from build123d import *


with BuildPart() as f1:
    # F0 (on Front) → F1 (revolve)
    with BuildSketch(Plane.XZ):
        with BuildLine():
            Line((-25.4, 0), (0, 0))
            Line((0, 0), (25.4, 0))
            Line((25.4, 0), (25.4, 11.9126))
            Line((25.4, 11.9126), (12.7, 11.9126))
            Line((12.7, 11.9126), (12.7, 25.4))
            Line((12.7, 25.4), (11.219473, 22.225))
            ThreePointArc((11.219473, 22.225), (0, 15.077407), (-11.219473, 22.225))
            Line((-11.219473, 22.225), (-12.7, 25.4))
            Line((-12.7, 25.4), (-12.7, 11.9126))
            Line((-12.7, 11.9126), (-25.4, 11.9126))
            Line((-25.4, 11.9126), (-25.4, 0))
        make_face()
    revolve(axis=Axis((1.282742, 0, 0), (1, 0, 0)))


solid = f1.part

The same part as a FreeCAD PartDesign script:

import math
import FreeCAD as App
import Part
import Sketcher
from FreeCAD import Vector
Q = App.Units.Quantity

doc = App.newDocument("Part")
body = doc.addObject("PartDesign::Body", "Body")

# Sketch on XZ plane
sketch1 = body.newObject("Sketcher::SketchObject", "Sketch")
sketch1.AttachmentSupport = (doc.getObject("XZ_Plane"), [""])
sketch1.MapMode = "FlatFace"
sketch1.addGeometry(Part.LineSegment(Vector(-25.4, 0, 0), Vector(25.4, 0, 0)), False)
sketch1.addGeometry(Part.LineSegment(Vector(25.4, 0, 0), Vector(25.4, 11.9126, 0)), False)
sketch1.addGeometry(Part.LineSegment(Vector(25.4, 11.9126, 0), Vector(12.7, 11.9126, 0)), False)
sketch1.addGeometry(Part.LineSegment(Vector(12.7, 11.9126, 0), Vector(12.7, 25.4, 0)), False)
sketch1.addGeometry(Part.LineSegment(Vector(12.7, 25.4, 0), Vector(11.219473, 22.225, 0)), False)
sketch1.addGeometry(Part.ArcOfCircle(Part.Circle(Vector(0, 27.456725, 0), Vector(0, 0, 1), 12.379318), math.radians(-155.000003), math.radians(-24.999997)), False)
sketch1.addGeometry(Part.LineSegment(Vector(-11.219473, 22.225, 0), Vector(-12.7, 25.4, 0)), False)
sketch1.addGeometry(Part.LineSegment(Vector(-12.7, 25.4, 0), Vector(-12.7, 11.9126, 0)), False)
sketch1.addGeometry(Part.LineSegment(Vector(-12.7, 11.9126, 0), Vector(-25.4, 11.9126, 0)), False)
sketch1.addGeometry(Part.LineSegment(Vector(-25.4, 11.9126, 0), Vector(-25.4, 0, 0)), False)
sketch1.addConstraint(Sketcher.Constraint("Coincident", 0, 2, 1, 1))
sketch1.addConstraint(Sketcher.Constraint("Coincident", 1, 2, 2, 1))
sketch1.addConstraint(Sketcher.Constraint("Coincident", 2, 2, 3, 1))
sketch1.addConstraint(Sketcher.Constraint("Coincident", 3, 2, 4, 1))
sketch1.addConstraint(Sketcher.Constraint("Tangent", 4, 2, 5, 2))
sketch1.addConstraint(Sketcher.Constraint("Tangent", 5, 1, 6, 1))
sketch1.addConstraint(Sketcher.Constraint("Coincident", 6, 2, 7, 1))
sketch1.addConstraint(Sketcher.Constraint("Coincident", 7, 2, 8, 1))
sketch1.addConstraint(Sketcher.Constraint("Coincident", 8, 2, 9, 1))
sketch1.addConstraint(Sketcher.Constraint("Coincident", 9, 2, 0, 1))
sketch1.addConstraint(Sketcher.Constraint("Horizontal", 0))
sketch1.addConstraint(Sketcher.Constraint("Vertical", 1))
sketch1.addConstraint(Sketcher.Constraint("Horizontal", 2))
sketch1.addConstraint(Sketcher.Constraint("Vertical", 3))
sketch1.addConstraint(Sketcher.Constraint("Vertical", 7))
sketch1.addConstraint(Sketcher.Constraint("Horizontal", 8))
sketch1.addConstraint(Sketcher.Constraint("Vertical", 9))
sketch1.addConstraint(Sketcher.Constraint("Symmetric", 0, 2, 9, 2, -1, 1))
sketch1.addConstraint(Sketcher.Constraint("Symmetric", 4, 2, 5, 1, -2))
sketch1.addConstraint(Sketcher.Constraint("Symmetric", 2, 2, 7, 2, -2))
sketch1.addConstraint(Sketcher.Constraint("DistanceX", 0, 1, 0, 2, Q("2 in")))
sketch1.addConstraint(Sketcher.Constraint("DistanceX", 2, 2, 2, 1, Q("0.5 in")))
sketch1.addConstraint(Sketcher.Constraint("DistanceY", -1, 1, 3, 2, Q("1 in")))
sketch1.addConstraint(Sketcher.Constraint("Angle", 4, Q("-115.000003 deg")))
sketch1.addConstraint(Sketcher.Constraint("DistanceY", 1, 1, 1, 2, Q("0.469 in")))
sketch1.addConstraint(Sketcher.Constraint("DistanceY", -1, 1, 4, 2, Q("0.875 in")))
revolution = body.newObject("PartDesign::Revolution", "Revolution")
revolution.Profile = sketch1
revolution.ReferenceAxis = (sketch1, ["H_Axis"])
revolution.Angle = 360

doc.recompute()
